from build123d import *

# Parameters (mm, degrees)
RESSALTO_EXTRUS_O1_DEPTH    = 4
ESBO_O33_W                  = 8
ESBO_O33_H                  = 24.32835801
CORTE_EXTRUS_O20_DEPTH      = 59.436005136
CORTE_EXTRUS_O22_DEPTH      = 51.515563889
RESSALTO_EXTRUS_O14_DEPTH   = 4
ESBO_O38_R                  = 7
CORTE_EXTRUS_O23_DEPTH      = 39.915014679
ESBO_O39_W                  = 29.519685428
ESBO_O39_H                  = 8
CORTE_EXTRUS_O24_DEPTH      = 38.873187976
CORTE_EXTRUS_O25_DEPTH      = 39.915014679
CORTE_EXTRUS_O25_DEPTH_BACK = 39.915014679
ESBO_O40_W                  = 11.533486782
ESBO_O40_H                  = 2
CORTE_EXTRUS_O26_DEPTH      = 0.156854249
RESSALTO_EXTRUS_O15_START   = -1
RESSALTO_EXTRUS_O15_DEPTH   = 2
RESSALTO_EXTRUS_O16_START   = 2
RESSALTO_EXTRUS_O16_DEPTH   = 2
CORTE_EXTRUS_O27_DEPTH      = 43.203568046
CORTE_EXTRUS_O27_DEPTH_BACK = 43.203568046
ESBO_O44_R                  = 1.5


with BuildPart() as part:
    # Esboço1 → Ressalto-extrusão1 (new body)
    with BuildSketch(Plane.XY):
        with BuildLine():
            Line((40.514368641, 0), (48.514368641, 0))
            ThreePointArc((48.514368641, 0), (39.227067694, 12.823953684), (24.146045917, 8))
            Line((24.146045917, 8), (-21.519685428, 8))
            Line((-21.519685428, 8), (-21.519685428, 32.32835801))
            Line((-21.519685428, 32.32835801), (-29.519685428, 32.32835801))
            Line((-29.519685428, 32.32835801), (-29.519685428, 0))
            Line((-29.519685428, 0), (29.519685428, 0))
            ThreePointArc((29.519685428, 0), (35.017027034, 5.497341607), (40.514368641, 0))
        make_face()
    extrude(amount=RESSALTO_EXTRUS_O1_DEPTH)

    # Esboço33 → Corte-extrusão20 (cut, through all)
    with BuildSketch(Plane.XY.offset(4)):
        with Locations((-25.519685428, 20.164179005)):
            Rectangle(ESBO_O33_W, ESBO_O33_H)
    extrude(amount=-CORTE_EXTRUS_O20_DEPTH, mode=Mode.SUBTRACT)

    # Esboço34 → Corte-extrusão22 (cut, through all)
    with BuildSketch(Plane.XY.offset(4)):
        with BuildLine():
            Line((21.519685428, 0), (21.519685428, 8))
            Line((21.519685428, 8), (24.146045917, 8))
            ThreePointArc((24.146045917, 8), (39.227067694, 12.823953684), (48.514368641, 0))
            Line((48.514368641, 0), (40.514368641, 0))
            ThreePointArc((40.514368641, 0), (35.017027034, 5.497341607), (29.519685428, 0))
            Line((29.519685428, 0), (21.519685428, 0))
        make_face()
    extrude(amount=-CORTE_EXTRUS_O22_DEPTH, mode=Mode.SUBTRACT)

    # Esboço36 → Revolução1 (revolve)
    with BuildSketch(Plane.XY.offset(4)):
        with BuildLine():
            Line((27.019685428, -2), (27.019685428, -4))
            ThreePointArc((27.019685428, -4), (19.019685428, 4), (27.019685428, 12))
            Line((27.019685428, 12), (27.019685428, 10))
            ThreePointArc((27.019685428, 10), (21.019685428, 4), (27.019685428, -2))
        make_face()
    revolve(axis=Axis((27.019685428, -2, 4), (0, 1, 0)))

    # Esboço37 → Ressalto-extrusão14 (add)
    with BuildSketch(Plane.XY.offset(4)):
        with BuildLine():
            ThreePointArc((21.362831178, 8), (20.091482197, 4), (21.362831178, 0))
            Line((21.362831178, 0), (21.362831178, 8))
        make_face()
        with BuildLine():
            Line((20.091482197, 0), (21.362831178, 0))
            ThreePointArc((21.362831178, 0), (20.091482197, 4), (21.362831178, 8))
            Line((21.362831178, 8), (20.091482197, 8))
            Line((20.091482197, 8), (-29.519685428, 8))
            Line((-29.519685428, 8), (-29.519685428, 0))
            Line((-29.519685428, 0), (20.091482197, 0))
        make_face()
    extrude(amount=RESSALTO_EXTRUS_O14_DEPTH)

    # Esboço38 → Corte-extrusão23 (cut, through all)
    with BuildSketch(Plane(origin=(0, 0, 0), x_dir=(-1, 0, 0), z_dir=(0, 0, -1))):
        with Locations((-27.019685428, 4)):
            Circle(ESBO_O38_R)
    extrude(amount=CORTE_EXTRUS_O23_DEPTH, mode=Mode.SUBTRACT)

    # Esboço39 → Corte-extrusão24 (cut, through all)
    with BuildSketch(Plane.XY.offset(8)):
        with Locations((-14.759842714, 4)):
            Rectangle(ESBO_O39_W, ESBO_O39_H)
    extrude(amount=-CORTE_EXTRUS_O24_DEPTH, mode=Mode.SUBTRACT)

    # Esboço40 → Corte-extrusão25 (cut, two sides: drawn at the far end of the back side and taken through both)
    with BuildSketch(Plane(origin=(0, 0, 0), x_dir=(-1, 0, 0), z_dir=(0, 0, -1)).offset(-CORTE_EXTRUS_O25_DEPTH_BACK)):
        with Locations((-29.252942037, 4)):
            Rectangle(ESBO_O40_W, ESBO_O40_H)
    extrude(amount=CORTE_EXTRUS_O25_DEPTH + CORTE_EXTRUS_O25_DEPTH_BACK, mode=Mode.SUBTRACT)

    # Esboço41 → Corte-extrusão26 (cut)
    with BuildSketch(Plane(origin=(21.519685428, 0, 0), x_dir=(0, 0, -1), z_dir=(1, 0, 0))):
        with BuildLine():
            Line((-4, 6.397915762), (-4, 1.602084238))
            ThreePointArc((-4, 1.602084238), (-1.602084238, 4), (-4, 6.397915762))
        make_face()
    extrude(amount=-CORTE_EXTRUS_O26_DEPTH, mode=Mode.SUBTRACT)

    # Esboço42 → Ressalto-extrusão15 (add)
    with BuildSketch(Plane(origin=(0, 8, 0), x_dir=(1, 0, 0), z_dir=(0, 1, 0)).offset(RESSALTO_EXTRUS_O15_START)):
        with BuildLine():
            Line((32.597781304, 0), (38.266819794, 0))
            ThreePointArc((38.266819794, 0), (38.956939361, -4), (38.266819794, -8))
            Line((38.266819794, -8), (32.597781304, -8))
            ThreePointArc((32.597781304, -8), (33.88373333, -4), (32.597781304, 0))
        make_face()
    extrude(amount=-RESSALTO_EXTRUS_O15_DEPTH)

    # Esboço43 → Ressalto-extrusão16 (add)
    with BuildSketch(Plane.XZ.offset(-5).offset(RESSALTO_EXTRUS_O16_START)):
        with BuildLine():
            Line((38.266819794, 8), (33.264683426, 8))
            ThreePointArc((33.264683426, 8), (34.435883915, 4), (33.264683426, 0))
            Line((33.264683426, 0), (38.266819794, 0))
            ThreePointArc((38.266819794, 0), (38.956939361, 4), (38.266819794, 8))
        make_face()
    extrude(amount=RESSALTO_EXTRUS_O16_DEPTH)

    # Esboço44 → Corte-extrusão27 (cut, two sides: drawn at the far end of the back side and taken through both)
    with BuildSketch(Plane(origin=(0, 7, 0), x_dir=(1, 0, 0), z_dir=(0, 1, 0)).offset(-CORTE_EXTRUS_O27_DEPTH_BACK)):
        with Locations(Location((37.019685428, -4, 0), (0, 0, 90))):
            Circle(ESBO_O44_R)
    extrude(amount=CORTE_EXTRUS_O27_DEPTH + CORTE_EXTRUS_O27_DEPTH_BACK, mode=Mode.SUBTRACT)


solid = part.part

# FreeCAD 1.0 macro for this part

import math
import FreeCAD as App
import Part
import Sketcher

V = App.Vector

doc = App.newDocument("Part")
body = doc.addObject("PartDesign::Body", "Body")

# Sketch on XY plane
sketch1 = body.newObject("Sketcher::SketchObject", "Sketch")
sketch1.AttachmentSupport = (doc.getObject("XY_Plane"), [""])
sketch1.MapMode = "FlatFace"
sketch1.addGeometry([
    Part.LineSegment(V(41, 0, 0), V(49, 0, 0)),  # 0
    Part.ArcOfCircle(Part.Circle(V(35, 0, 0), V(0, 0, 1), 13), math.radians(0), math.radians(144)),  # 1
    Part.LineSegment(V(24, 8, 0), V(-22, 8, 0)),  # 2
    Part.LineSegment(V(-22, 8, 0), V(-22, 32, 0)),  # 3
    Part.LineSegment(V(-22, 32, 0), V(-30, 32, 0)),  # 4
    Part.LineSegment(V(-30, 32, 0), V(-30, 0, 0)),  # 5
    Part.LineSegment(V(-30, 0, 0), V(30, 0, 0)),  # 6
    Part.ArcOfCircle(Part.Circle(V(35, 0, 0), V(0, 0, 1), 5), math.radians(0), math.radians(180)),  # 7
], False)
sketch1.addConstraint([
    Sketcher.Constraint("Coincident", 0, 2, 1, 1),
    Sketcher.Constraint("Coincident", 1, 2, 2, 1),
    Sketcher.Constraint("Coincident", 2, 2, 3, 1),
    Sketcher.Constraint("Coincident", 3, 2, 4, 1),
    Sketcher.Constraint("Coincident", 4, 2, 5, 1),
    Sketcher.Constraint("Coincident", 5, 2, 6, 1),
    Sketcher.Constraint("Coincident", 6, 2, 7, 2),
    Sketcher.Constraint("Coincident", 7, 1, 0, 1),
    Sketcher.Constraint("Horizontal", 0),
    Sketcher.Constraint("Horizontal", 2),
    Sketcher.Constraint("Vertical", 3),
    Sketcher.Constraint("Horizontal", 4),
    Sketcher.Constraint("Vertical", 5),
    Sketcher.Constraint("Horizontal", 6),
    Sketcher.Constraint("Coincident", 7, 3, 1, 3),
    Sketcher.Constraint("Symmetric", 5, 2, 6, 2, -1, 1),
    Sketcher.Constraint("PointOnObject", 1, 3, -1),
    Sketcher.Constraint("PointOnObject", 0, 2, -1),
    Sketcher.Constraint("Equal", 0, 4),
    Sketcher.Constraint("DistanceX", 0, 1, 0, 2, 8.0),
    Sketcher.Constraint("DistanceY", -1, 1, 1, 2, 8.0),
    Sketcher.Constraint("Radius", 1, 13.497342),
    Sketcher.Constraint("DistanceX", 2, 2, 2, 1, 45.665731),
    Sketcher.Constraint("DistanceY", 3, 1, 3, 2, 24.328358),
])
pad1 = body.newObject("PartDesign::Pad", "Pad")
pad1.Profile = sketch1
pad1.Length = 4

# Sketch on XY plane
sketch2 = body.newObject("Sketcher::SketchObject", "Sketch001")
sketch2.AttachmentSupport = (doc.getObject("XY_Plane"), [""])
sketch2.MapMode = "FlatFace"
sketch2.AttachmentOffset = App.Placement(V(0, 0, 4), App.Rotation())
sketch2.addGeometry([
    Part.LineSegment(V(-30, 32, 0), V(-30, 8, 0)),
    Part.LineSegment(V(-30, 8, 0), V(-22, 8, 0)),
    Part.LineSegment(V(-22, 8, 0), V(-22, 32, 0)),
    Part.LineSegment(V(-22, 32, 0), V(-30, 32, 0)),
], False)
sketch2.addConstraint([
    Sketcher.Constraint("Coincident", 0, 2, 1, 1),
    Sketcher.Constraint("Coincident", 1, 2, 2, 1),
    Sketcher.Constraint("Coincident", 2, 2, 3, 1),
    Sketcher.Constraint("Coincident", 3, 2, 0, 1),
    Sketcher.Constraint("Vertical", 0),
    Sketcher.Constraint("Horizontal", 1),
    Sketcher.Constraint("Vertical", 2),
    Sketcher.Constraint("Horizontal", 3),
    Sketcher.Constraint("DistanceX", 1, 1, 1, 2, 8.0),
    Sketcher.Constraint("DistanceY", -1, 1, 0, 2, 8.0),
    Sketcher.Constraint("DistanceY", 0, 2, 0, 1, 24.328358),
    Sketcher.Constraint("DistanceX", 0, 2, -1, 1, 29.519685),
])
pocket1 = body.newObject("PartDesign::Pocket", "Pocket")
pocket1.Profile = sketch2
pocket1.Type = "ThroughAll"

# Sketch on XY plane
sketch3 = body.newObject("Sketcher::SketchObject", "Sketch002")
sketch3.AttachmentSupport = (doc.getObject("XY_Plane"), [""])
sketch3.MapMode = "FlatFace"
sketch3.AttachmentOffset = App.Placement(V(0, 0, 4), App.Rotation())
sketch3.addGeometry([
    Part.LineSegment(V(21.5, 8, 0), V(21.5, 0, 0)),  # 0
    Part.LineSegment(V(21.5, 0, 0), V(29.5, 0, 0)),  # 1
    Part.ArcOfCircle(Part.Circle(V(35, 0, 0), V(0, 0, 1), 5.5), math.radians(0), math.radians(180)),  # 2
    Part.LineSegment(V(40.5, 0, 0), V(48.5, 0, 0)),  # 3
    Part.ArcOfCircle(Part.Circle(V(35, 0, 0), V(0, 0, 1), 13.5), math.radians(0), math.radians(144)),  # 4
    Part.LineSegment(V(24.1, 8, 0), V(21.5, 8, 0)),  # 5
], False)
sketch3.addConstraint([
    Sketcher.Constraint("Coincident", 0, 2, 1, 1),
    Sketcher.Constraint("Coincident", 1, 2, 2, 2),
    Sketcher.Constraint("Coincident", 2, 1, 3, 1),
    Sketcher.Constraint("Coincident", 3, 2, 4, 1),
    Sketcher.Constraint("Coincident", 4, 2, 5, 1),
    Sketcher.Constraint("Coincident", 5, 2, 0, 1),
    Sketcher.Constraint("Vertical", 0),
    Sketcher.Constraint("Horizontal", 1),
    Sketcher.Constraint("Horizontal", 3),
    Sketcher.Constraint("Horizontal", 5),
    Sketcher.Constraint("Coincident", 4, 3, 2, 3),
    Sketcher.Constraint("PointOnObject", 2, 3, -1),
    Sketcher.Constraint("PointOnObject", 0, 2, -1),
    Sketcher.Constraint("PointOnObject", 2, 1, -1),
    Sketcher.Constraint("Equal", 1, 3),
    Sketcher.Constraint("Equal", 3, 0),
    Sketcher.Constraint("DistanceX", 1, 1, 1, 2, 8.0),
    Sketcher.Constraint("Radius", 2, 5.497342),
    Sketcher.Constraint("DistanceX", -1, 1, 2, 1, 40.514369),
])
pocket2 = body.newObject("PartDesign::Pocket", "Pocket001")
pocket2.Profile = sketch3
pocket2.Type = "ThroughAll"

# Sketch on XY plane
sketch4 = body.newObject("Sketcher::SketchObject", "Sketch003")
sketch4.AttachmentSupport = (doc.getObject("XY_Plane"), [""])
sketch4.MapMode = "FlatFace"
sketch4.AttachmentOffset = App.Placement(V(0, 0, 4), App.Rotation())
sketch4.addGeometry([
    Part.LineSegment(V(27, -4, 0), V(27, -2, 0)),
    Part.ArcOfCircle(Part.Circle(V(27, 4, 0), V(0, 0, 1), 6), math.radians(90), math.radians(270)),
    Part.LineSegment(V(27, 10, 0), V(27, 12, 0)),
    Part.ArcOfCircle(Part.Circle(V(27, 4, 0), V(0, 0, 1), 8), math.radians(90), math.radians(270)),
], False)
sketch4.addGeometry(Part.LineSegment(V(27, -4, 0), V(27, 12, 0)), True)  # axis
sketch4.addConstraint([
    Sketcher.Constraint("Coincident", 0, 2, 1, 2),
    Sketcher.Constraint("Coincident", 1, 1, 2, 1),
    Sketcher.Constraint("Coincident", 2, 2, 3, 1),
    Sketcher.Constraint("Coincident", 3, 2, 0, 1),
    Sketcher.Constraint("Vertical", 0),
    Sketcher.Constraint("Vertical", 2),
    Sketcher.Constraint("Vertical", 4),
    Sketcher.Constraint("Coincident", 3, 3, 1, 3),
    Sketcher.Constraint("Coincident", 4, 1, 3, 2),
    Sketcher.Constraint("Coincident", 4, 2, 2, 2),
    Sketcher.Constraint("Vertical", 3, 3, 0, 2),
    Sketcher.Constraint("Radius", 1, 6.0),
    Sketcher.Constraint("Radius", 3, 8.0),
    Sketcher.Constraint("DistanceY", -1, 1, 1, 3, 4.0),
    Sketcher.Constraint("DistanceX", -1, 1, 1, 3, 27.019685),
])
revolution = body.newObject("PartDesign::Revolution", "Revolution")
revolution.Profile = sketch4
revolution.ReferenceAxis = (sketch4, ["Axis0"])
revolution.Angle = 360

# Sketch on XY plane
sketch5 = body.newObject("Sketcher::SketchObject", "Sketch004")
sketch5.AttachmentSupport = (doc.getObject("XY_Plane"), [""])
sketch5.MapMode = "FlatFace"
sketch5.AttachmentOffset = App.Placement(V(0, 0, 4), App.Rotation())
sketch5.addGeometry([
    Part.LineSegment(V(21, 0, 0), V(21, 8, 0)),
    Part.LineSegment(V(21, 8, 0), V(-30, 8, 0)),
    Part.LineSegment(V(-30, 8, 0), V(-30, 0, 0)),
    Part.LineSegment(V(-30, 0, 0), V(21, 0, 0)),
], False)
sketch5.addConstraint([
    Sketcher.Constraint("Coincident", 0, 2, 1, 1),
    Sketcher.Constraint("Coincident", 1, 2, 2, 1),
    Sketcher.Constraint("Coincident", 2, 2, 3, 1),
    Sketcher.Constraint("Coincident", 3, 2, 0, 1),
    Sketcher.Constraint("Vertical", 0),
    Sketcher.Constraint("Horizontal", 1),
    Sketcher.Constraint("Vertical", 2),
    Sketcher.Constraint("Horizontal", 3),
    Sketcher.Constraint("PointOnObject", 2, 2, -1),
    Sketcher.Constraint("DistanceY", 0, 1, 0, 2, 8.0),
    Sketcher.Constraint("DistanceX", 1, 2, 1, 1, 50.882517),
    Sketcher.Constraint("DistanceX", -1, 1, 0, 2, 21.362831),
])
pad2 = body.newObject("PartDesign::Pad", "Pad001")
pad2.Profile = sketch5
pad2.Length = 4

# Sketch on XY plane
sketch6 = body.newObject("Sketcher::SketchObject", "Sketch005")
sketch6.AttachmentSupport = (doc.getObject("XY_Plane"), [""])
sketch6.MapMode = "FlatFace"
sketch6.addGeometry(Part.Circle(V(27, 4, 0), V(0, 0, 1), 7), False)
sketch6.addConstraint([
    Sketcher.Constraint("Diameter", 0, 14.0),
    Sketcher.Constraint("DistanceY", -1, 1, 0, 3, 4.0),
    Sketcher.Constraint("DistanceX", -1, 1, 0, 3, 27.019685),
])
pocket3 = body.newObject("PartDesign::Pocket", "Pocket002")
pocket3.Profile = sketch6
pocket3.Type = "ThroughAll"

# Sketch on XY plane
sketch7 = body.newObject("Sketcher::SketchObject", "Sketch006")
sketch7.AttachmentSupport = (doc.getObject("XY_Plane"), [""])
sketch7.MapMode = "FlatFace"
sketch7.AttachmentOffset = App.Placement(V(0, 0, 8), App.Rotation())
sketch7.addGeometry([
    Part.LineSegment(V(-30, 8, 0), V(-30, 0, 0)),
    Part.LineSegment(V(-30, 0, 0), V(0, 0, 0)),
    Part.LineSegment(V(0, 0, 0), V(0, 8, 0)),
    Part.LineSegment(V(0, 8, 0), V(-30, 8, 0)),
], False)
sketch7.addConstraint([
    Sketcher.Constraint("Coincident", 0, 2, 1, 1),
    Sketcher.Constraint("Coincident", 1, 2, 2, 1),
    Sketcher.Constraint("Coincident", 2, 2, 3, 1),
    Sketcher.Constraint("Coincident", 3, 2, 0, 1),
    Sketcher.Constraint("Vertical", 0),
    Sketcher.Constraint("Horizontal", 1),
    Sketcher.Constraint("Vertical", 2),
    Sketcher.Constraint("Horizontal", 3),
    Sketcher.Constraint("Coincident", 1, 2, -1, 1),
    Sketcher.Constraint("DistanceY", 0, 2, 0, 1, 8.0),
    Sketcher.Constraint("DistanceX", 1, 1, 1, 2, 29.519685),
])
pocket4 = body.newObject("PartDesign::Pocket", "Pocket003")
pocket4.Profile = sketch7
pocket4.Type = "ThroughAll"

# Sketch on XY plane
sketch8 = body.newObject("Sketcher::SketchObject", "Sketch007")
sketch8.AttachmentSupport = (doc.getObject("XY_Plane"), [""])
sketch8.MapMode = "FlatFace"
sketch8.addGeometry([
    Part.LineSegment(V(35, 5, 0), V(35, 3, 0)),
    Part.LineSegment(V(35, 3, 0), V(23.5, 3, 0)),
    Part.LineSegment(V(23.5, 3, 0), V(23.5, 5, 0)),
    Part.LineSegment(V(23.5, 5, 0), V(35, 5, 0)),
], False)
sketch8.addConstraint([
    Sketcher.Constraint("Coincident", 0, 2, 1, 1),
    Sketcher.Constraint("Coincident", 1, 2, 2, 1),
    Sketcher.Constraint("Coincident", 2, 2, 3, 1),
    Sketcher.Constraint("Coincident", 3, 2, 0, 1),
    Sketcher.Constraint("Vertical", 0),
    Sketcher.Constraint("Horizontal", 1),
    Sketcher.Constraint("Vertical", 2),
    Sketcher.Constraint("Horizontal", 3),
    Sketcher.Constraint("DistanceY", 0, 2, 0, 1, 2.0),
    Sketcher.Constraint("DistanceY", -1, 1, 0, 2, 3.0),
    Sketcher.Constraint("DistanceX", -1, 1, 1, 2, 23.486199),
    Sketcher.Constraint("DistanceX", 1, 2, 1, 1, 11.533487),
])
pocket5 = body.newObject("PartDesign::Pocket", "Pocket004")
pocket5.Profile = sketch8
pocket5.Type = "ThroughAll"
pocket5.Midplane = True

# Sketch on YZ plane
sketch9 = body.newObject("Sketcher::SketchObject", "Sketch008")
sketch9.AttachmentSupport = (doc.getObject("YZ_Plane"), [""])
sketch9.MapMode = "FlatFace"
sketch9.AttachmentOffset = App.Placement(V(0, 0, 21.519685), App.Rotation())
sketch9.addGeometry([
    Part.LineSegment(V(6.4, 4, 0), V(1.6, 4, 0)),
    Part.ArcOfCircle(Part.Circle(V(4, 4, 0), V(0, 0, 1), 2.4), math.radians(180), math.radians(360)),
], False)
sketch9.addConstraint([
    Sketcher.Constraint("Coincident", 0, 1, 1, 2),
    Sketcher.Constraint("Coincident", 1, 1, 0, 2),
    Sketcher.Constraint("Horizontal", 0),
    Sketcher.Constraint("Horizontal", 1, 3, 0, 1),
    Sketcher.Constraint("DistanceX", -1, 1, 1, 3, 4.0),
    Sketcher.Constraint("DistanceY", -1, 1, 1, 3, 4.0),
    Sketcher.Constraint("Radius", 1, 2.397916),
])
pocket6 = body.newObject("PartDesign::Pocket", "Pocket005")
pocket6.Profile = sketch9
pocket6.Length = 0.156854

# Sketch on XZ plane
sketch10 = body.newObject("Sketcher::SketchObject", "Sketch009")
sketch10.AttachmentSupport = (doc.getObject("XZ_Plane"), [""])
sketch10.MapMode = "FlatFace"
sketch10.AttachmentOffset = App.Placement(V(0, 0, -7), App.Rotation())
sketch10.addGeometry([
    Part.LineSegment(V(38, 0, 0), V(33, 0, 0)),
    Part.ArcOfCircle(Part.Circle(V(27, 4, 0), V(0, 0, 1), 7), math.radians(-36), math.radians(36)),
    Part.LineSegment(V(33, 8, 0), V(38, 8, 0)),
    Part.ArcOfCircle(Part.Circle(V(27, 4, 0), V(0, 0, 1), 12), math.radians(-20), math.radians(20)),
], False)
sketch10.addConstraint([
    Sketcher.Constraint("Coincident", 0, 2, 1, 1),
    Sketcher.Constraint("Coincident", 1, 2, 2, 1),
    Sketcher.Constraint("Coincident", 2, 2, 3, 2),
    Sketcher.Constraint("Coincident", 3, 1, 0, 1),
    Sketcher.Constraint("Horizontal", 0),
    Sketcher.Constraint("Horizontal", 2),
    Sketcher.Constraint("Coincident", 3, 3, 1, 3),
    Sketcher.Constraint("PointOnObject", 0, 2, -1),
    Sketcher.Constraint("Vertical", 0, 2, 1, 2),
    Sketcher.Constraint("DistanceY", -1, 1, 1, 3, 4.0),
    Sketcher.Constraint("Radius", 1, 6.864048),
    Sketcher.Constraint("Radius", 3, 11.937254),
    Sketcher.Constraint("DistanceX", -1, 1, 0, 2, 32.597781),
])
pad3 = body.newObject("PartDesign::Pad", "Pad002")
pad3.Profile = sketch10
pad3.Length = 2

# Sketch on XZ plane
sketch11 = body.newObject("Sketcher::SketchObject", "Sketch010")
sketch11.AttachmentSupport = (doc.getObject("XZ_Plane"), [""])
sketch11.MapMode = "FlatFace"
sketch11.AttachmentOffset = App.Placement(V(0, 0, -3), App.Rotation())
sketch11.addGeometry([
    Part.LineSegment(V(38, 8, 0), V(33, 8, 0)),
    Part.ArcOfCircle(Part.Circle(V(27, 4, 0), V(0, 0, 1), 7), math.radians(-33), math.radians(33)),
    Part.LineSegment(V(33, 0, 0), V(38, 0, 0)),
    Part.ArcOfCircle(Part.Circle(V(27, 4, 0), V(0, 0, 1), 12), math.radians(-20), math.radians(20)),
], False)
sketch11.addConstraint([
    Sketcher.Constraint("Coincident", 0, 2, 1, 2),
    Sketcher.Constraint("Coincident", 1, 1, 2, 1),
    Sketcher.Constraint("Coincident", 2, 2, 3, 1),
    Sketcher.Constraint("Coincident", 3, 2, 0, 1),
    Sketcher.Constraint("Horizontal", 0),
    Sketcher.Constraint("Horizontal", 2),
    Sketcher.Constraint("Coincident", 3, 3, 1, 3),
    Sketcher.Constraint("PointOnObject", 1, 1, -1),
    Sketcher.Constraint("Vertical", 0, 2, 1, 1),
    Sketcher.Constraint("DistanceY", -1, 1, 1, 3, 4.0),
    Sketcher.Constraint("Radius", 1, 7.416198),
    Sketcher.Constraint("Radius", 3, 11.937254),
    Sketcher.Constraint("DistanceX", -1, 1, 2, 2, 38.26682),
])
pad4 = body.newObject("PartDesign::Pad", "Pad003")
pad4.Profile = sketch11
pad4.Length = 2

# Sketch on XZ plane
sketch12 = body.newObject("Sketcher::SketchObject", "Sketch011")
sketch12.AttachmentSupport = (doc.getObject("XZ_Plane"), [""])
sketch12.MapMode = "FlatFace"
sketch12.AttachmentOffset = App.Placement(V(0, 0, -7), App.Rotation())
sketch12.addGeometry(Part.Circle(V(37, 4, 0), V(0, 0, 1), 1.5), False)
sketch12.addConstraint([
    Sketcher.Constraint("Diameter", 0, 3.0),
    Sketcher.Constraint("DistanceY", -1, 1, 0, 3, 4.0),
    Sketcher.Constraint("DistanceX", -1, 1, 0, 3, 37.019685),
])
pocket7 = body.newObject("PartDesign::Pocket", "Pocket006")
pocket7.Profile = sketch12
pocket7.Type = "ThroughAll"
pocket7.Midplane = True

doc.recompute()
